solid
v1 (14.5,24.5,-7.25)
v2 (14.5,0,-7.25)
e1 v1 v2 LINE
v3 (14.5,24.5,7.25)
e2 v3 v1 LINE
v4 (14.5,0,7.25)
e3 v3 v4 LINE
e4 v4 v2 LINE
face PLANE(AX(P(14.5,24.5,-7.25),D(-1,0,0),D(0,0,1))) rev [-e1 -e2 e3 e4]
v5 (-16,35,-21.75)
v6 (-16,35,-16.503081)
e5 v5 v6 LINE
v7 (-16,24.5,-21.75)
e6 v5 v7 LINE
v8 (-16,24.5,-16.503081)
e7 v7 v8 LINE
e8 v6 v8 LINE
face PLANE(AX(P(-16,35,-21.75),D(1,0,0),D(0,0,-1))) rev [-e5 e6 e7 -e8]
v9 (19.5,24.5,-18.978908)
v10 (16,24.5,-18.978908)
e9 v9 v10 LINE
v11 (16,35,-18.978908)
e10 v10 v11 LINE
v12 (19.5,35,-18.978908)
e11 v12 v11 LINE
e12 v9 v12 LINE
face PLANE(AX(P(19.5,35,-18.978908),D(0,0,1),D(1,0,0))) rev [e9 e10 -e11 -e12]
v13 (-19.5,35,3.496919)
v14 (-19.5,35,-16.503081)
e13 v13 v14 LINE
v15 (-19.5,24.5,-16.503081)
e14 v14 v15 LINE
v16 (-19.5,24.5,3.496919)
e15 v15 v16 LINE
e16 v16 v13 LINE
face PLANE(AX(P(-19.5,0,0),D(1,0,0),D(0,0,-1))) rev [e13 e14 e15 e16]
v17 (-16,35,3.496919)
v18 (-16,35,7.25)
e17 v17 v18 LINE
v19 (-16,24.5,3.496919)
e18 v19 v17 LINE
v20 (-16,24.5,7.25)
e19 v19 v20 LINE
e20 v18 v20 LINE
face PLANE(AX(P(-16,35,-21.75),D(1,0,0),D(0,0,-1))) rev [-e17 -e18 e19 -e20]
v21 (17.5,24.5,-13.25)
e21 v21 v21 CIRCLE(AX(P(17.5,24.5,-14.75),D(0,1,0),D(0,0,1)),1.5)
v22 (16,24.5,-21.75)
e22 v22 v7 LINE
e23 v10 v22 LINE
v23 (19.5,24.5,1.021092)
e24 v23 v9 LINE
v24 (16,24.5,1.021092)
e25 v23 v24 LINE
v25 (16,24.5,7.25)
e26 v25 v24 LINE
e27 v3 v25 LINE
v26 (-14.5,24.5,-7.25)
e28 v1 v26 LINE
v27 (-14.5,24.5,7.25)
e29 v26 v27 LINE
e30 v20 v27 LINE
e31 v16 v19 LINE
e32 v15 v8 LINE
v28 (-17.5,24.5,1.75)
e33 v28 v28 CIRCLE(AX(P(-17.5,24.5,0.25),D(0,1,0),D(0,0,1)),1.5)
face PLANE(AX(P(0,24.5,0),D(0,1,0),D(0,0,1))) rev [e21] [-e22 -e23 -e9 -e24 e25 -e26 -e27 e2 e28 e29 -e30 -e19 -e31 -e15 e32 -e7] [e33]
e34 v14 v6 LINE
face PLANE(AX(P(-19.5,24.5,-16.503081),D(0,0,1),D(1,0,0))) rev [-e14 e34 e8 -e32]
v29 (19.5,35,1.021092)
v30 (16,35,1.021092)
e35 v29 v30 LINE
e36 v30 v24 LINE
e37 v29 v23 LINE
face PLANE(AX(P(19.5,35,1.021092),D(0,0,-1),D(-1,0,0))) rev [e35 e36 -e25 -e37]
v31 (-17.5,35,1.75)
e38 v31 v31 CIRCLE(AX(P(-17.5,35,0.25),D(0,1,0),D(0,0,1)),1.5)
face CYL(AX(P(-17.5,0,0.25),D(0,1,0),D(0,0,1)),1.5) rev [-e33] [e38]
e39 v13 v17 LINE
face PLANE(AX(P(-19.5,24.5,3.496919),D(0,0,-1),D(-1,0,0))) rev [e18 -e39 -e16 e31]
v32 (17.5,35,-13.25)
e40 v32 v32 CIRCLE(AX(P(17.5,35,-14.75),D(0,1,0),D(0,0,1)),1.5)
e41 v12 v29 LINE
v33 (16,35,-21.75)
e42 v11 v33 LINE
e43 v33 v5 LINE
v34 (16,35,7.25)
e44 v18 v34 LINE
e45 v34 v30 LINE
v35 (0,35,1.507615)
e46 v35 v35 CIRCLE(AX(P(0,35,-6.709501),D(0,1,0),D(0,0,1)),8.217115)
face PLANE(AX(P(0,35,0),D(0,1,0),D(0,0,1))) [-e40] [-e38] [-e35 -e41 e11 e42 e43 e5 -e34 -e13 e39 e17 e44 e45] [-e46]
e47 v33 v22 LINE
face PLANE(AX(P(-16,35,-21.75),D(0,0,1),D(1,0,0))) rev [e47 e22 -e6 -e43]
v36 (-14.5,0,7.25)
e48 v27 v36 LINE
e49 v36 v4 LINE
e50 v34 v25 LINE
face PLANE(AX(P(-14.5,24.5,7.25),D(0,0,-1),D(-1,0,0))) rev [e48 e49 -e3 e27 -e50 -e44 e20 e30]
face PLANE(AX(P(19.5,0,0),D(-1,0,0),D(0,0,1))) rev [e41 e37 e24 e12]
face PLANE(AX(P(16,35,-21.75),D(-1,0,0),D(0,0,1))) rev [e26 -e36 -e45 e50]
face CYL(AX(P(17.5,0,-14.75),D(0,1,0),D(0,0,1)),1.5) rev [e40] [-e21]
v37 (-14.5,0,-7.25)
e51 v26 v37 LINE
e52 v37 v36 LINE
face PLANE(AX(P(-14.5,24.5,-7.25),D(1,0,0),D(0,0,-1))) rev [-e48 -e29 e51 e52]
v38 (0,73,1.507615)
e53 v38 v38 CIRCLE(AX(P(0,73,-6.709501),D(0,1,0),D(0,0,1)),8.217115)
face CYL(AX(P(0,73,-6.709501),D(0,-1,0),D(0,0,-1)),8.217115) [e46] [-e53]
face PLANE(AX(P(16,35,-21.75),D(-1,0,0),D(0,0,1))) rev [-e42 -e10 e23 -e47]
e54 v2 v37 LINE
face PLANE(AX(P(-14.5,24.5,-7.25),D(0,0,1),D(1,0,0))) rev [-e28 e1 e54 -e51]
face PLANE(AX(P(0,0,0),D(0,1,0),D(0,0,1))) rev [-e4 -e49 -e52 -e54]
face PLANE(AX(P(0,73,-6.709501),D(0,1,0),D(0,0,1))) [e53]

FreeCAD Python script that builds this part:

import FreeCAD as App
import Part
import Sketcher

doc = App.newDocument("Part")
params = doc.addObject("Spreadsheet::Sheet", "Params")
for row, (alias, value) in enumerate([
    ("sketch1_width", "29 mm"),
    ("sketch1_height", "14.5 mm"),
    ("pad1_length", "24.5 mm"),
    ("sketch2_width", "32 mm"),
    ("sketch2_height", "29 mm"),
    ("pad2_length", "10.5 mm"),
    ("sketch3_height", "20 mm"),
    ("sketch3_width", "10.5 mm"),
    ("pad3_length", "3.5 mm"),
    ("sketch4_height", "20 mm"),
    ("sketch4_width", "10.5 mm"),
    ("pad4_length", "3.5 mm"),
    ("sketch5_diameter", "3 mm"),
    ("pad5_length", "38 mm"),
], start=1):
    params.set(f"A{row}", alias)
    params.set(f"B{row}", "=" + value)
    params.setAlias(f"B{row}", alias)

body = doc.addObject("PartDesign::Body", "Body")

# Sketch on XZ plane
sketch1 = body.newObject("Sketcher::SketchObject", "Sketch")
sketch1.AttachmentSupport = (doc.getObject("XZ_Plane"), [""])
sketch1.MapMode = "FlatFace"
sketch1.addGeometry([
    Part.LineSegment(App.Vector(-14, -7, 0), App.Vector(-14, 7, 0)),
    Part.LineSegment(App.Vector(-14, 7, 0), App.Vector(14, 7, 0)),
    Part.LineSegment(App.Vector(14, 7, 0), App.Vector(14, -7, 0)),
    Part.LineSegment(App.Vector(14, -7, 0), App.Vector(-14, -7, 0)),
], False)
sketch1.addConstraint([
    Sketcher.Constraint("Coincident", 0, 2, 1, 1),
    Sketcher.Constraint("Coincident", 1, 2, 2, 1),
    Sketcher.Constraint("Coincident", 2, 2, 3, 1),
    Sketcher.Constraint("Coincident", 3, 2, 0, 1),
    Sketcher.Constraint("Vertical", 0),
    Sketcher.Constraint("Horizontal", 1),
    Sketcher.Constraint("Vertical", 2),
    Sketcher.Constraint("Horizontal", 3),
    Sketcher.Constraint("Symmetric", 0, 2, 2, 2, -1, 1),
    Sketcher.Constraint("DistanceX", 1, 1, 1, 2, 29.0),
    Sketcher.Constraint("DistanceY", 0, 1, 0, 2, 14.5),
])
sketch1.setExpression("Constraints[9]", "Params.sketch1_width")
sketch1.setExpression("Constraints[10]", "Params.sketch1_height")
pad1 = body.newObject("PartDesign::Pad", "Pad")
pad1.Profile = sketch1
pad1.setExpression("Length", "Params.pad1_length")
pad1.Reversed = True

# Sketch on XZ plane
sketch2 = body.newObject("Sketcher::SketchObject", "Sketch001")
sketch2.AttachmentSupport = (doc.getObject("XZ_Plane"), [""])
sketch2.MapMode = "FlatFace"
sketch2.AttachmentOffset = App.Placement(App.Vector(0, 0, -24.5), App.Rotation())
sketch2.addGeometry([
    Part.LineSegment(App.Vector(-16, -22, 0), App.Vector(-16, 7, 0)),
    Part.LineSegment(App.Vector(-16, 7, 0), App.Vector(16, 7, 0)),
    Part.LineSegment(App.Vector(16, 7, 0), App.Vector(16, -22, 0)),
    Part.LineSegment(App.Vector(16, -22, 0), App.Vector(-16, -22, 0)),
], False)
sketch2.addConstraint([
    Sketcher.Constraint("Coincident", 0, 2, 1, 1),
    Sketcher.Constraint("Coincident", 1, 2, 2, 1),
    Sketcher.Constraint("Coincident", 2, 2, 3, 1),
    Sketcher.Constraint("Coincident", 3, 2, 0, 1),
    Sketcher.Constraint("Vertical", 0),
    Sketcher.Constraint("Horizontal", 1),
    Sketcher.Constraint("Vertical", 2),
    Sketcher.Constraint("Horizontal", 3),
    Sketcher.Constraint("DistanceX", 1, 1, 1, 2, 32.0),
    Sketcher.Constraint("DistanceY", 0, 1, 0, 2, 29.0),
    Sketcher.Constraint("DistanceX", 0, 2, -1, 1, 16.0),
    Sketcher.Constraint("DistanceY", -1, 1, 0, 2, 7.25),
])
sketch2.setExpression("Constraints[8]", "Params.sketch2_width")
sketch2.setExpression("Constraints[9]", "Params.sketch2_height")
pad2 = body.newObject("PartDesign::Pad", "Pad001")
pad2.Profile = sketch2
pad2.setExpression("Length", "Params.pad2_length")
pad2.Reversed = True

# Sketch on YZ plane
sketch3 = body.newObject("Sketcher::SketchObject", "Sketch002")
sketch3.AttachmentSupport = (doc.getObject("YZ_Plane"), [""])
sketch3.MapMode = "FlatFace"
sketch3.AttachmentOffset = App.Placement(App.Vector(0, 0, 16), App.Rotation())
sketch3.addGeometry([
    Part.LineSegment(App.Vector(35, 1, 0), App.Vector(24, 1, 0)),
    Part.LineSegment(App.Vector(24, 1, 0), App.Vector(24, -19, 0)),
    Part.LineSegment(App.Vector(24, -19, 0), App.Vector(35, -19, 0)),
    Part.LineSegment(App.Vector(35, -19, 0), App.Vector(35, 1, 0)),
], False)
sketch3.addConstraint([
    Sketcher.Constraint("Coincident", 0, 2, 1, 1),
    Sketcher.Constraint("Coincident", 1, 2, 2, 1),
    Sketcher.Constraint("Coincident", 2, 2, 3, 1),
    Sketcher.Constraint("Coincident", 3, 2, 0, 1),
    Sketcher.Constraint("Horizontal", 0),
    Sketcher.Constraint("Vertical", 1),
    Sketcher.Constraint("Horizontal", 2),
    Sketcher.Constraint("Vertical", 3),
    Sketcher.Constraint("DistanceY", 1, 2, 1, 1, 20.0),
    Sketcher.Constraint("DistanceX", 0, 2, 0, 1, 10.5),
    Sketcher.Constraint("DistanceX", -1, 1, 2, 2, 35.0),
    Sketcher.Constraint("DistanceY", -1, 1, 0, 2, 1.021092),
])
sketch3.setExpression("Constraints[8]", "Params.sketch3_height")
sketch3.setExpression("Constraints[9]", "Params.sketch3_width")
pad3 = body.newObject("PartDesign::Pad", "Pad002")
pad3.Profile = sketch3
pad3.setExpression("Length", "Params.pad3_length")

# Sketch on YZ plane
sketch4 = body.newObject("Sketcher::SketchObject", "Sketch003")
sketch4.AttachmentSupport = (doc.getObject("YZ_Plane"), [""])
sketch4.MapMode = "FlatFace"
sketch4.AttachmentOffset = App.Placement(App.Vector(0, 0, -16), App.Rotation())
sketch4.addGeometry([
    Part.LineSegment(App.Vector(35, -17, 0), App.Vector(24, -17, 0)),
    Part.LineSegment(App.Vector(24, -17, 0), App.Vector(24, 3, 0)),
    Part.LineSegment(App.Vector(24, 3, 0), App.Vector(35, 3, 0)),
    Part.LineSegment(App.Vector(35, 3, 0), App.Vector(35, -17, 0)),
], False)
sketch4.addConstraint([
    Sketcher.Constraint("Coincident", 0, 2, 1, 1),
    Sketcher.Constraint("Coincident", 1, 2, 2, 1),
    Sketcher.Constraint("Coincident", 2, 2, 3, 1),
    Sketcher.Constraint("Coincident", 3, 2, 0, 1),
    Sketcher.Constraint("Horizontal", 0),
    Sketcher.Constraint("Vertical", 1),
    Sketcher.Constraint("Horizontal", 2),
    Sketcher.Constraint("Vertical", 3),
    Sketcher.Constraint("DistanceY", 1, 1, 1, 2, 20.0),
    Sketcher.Constraint("DistanceX", 0, 2, 0, 1, 10.5),
    Sketcher.Constraint("DistanceX", -1, 1, 2, 2, 35.0),
    Sketcher.Constraint("DistanceY", 0, 2, -1, 1, 16.503081),
])
sketch4.setExpression("Constraints[8]", "Params.sketch4_height")
sketch4.setExpression("Constraints[9]", "Params.sketch4_width")
pad4 = body.newObject("PartDesign::Pad", "Pad003")
pad4.Profile = sketch4
pad4.setExpression("Length", "Params.pad4_length")
pad4.Reversed = True

# Sketch on XZ plane
sketch5 = body.newObject("Sketcher::SketchObject", "Sketch004")
sketch5.AttachmentSupport = (doc.getObject("XZ_Plane"), [""])
sketch5.MapMode = "FlatFace"
sketch5.AttachmentOffset = App.Placement(App.Vector(0, 0, -35), App.Rotation())
sketch5.addGeometry([
    Part.Circle(App.Vector(17.5, -14.8, 0), App.Vector(0, 0, 1), 1.5),
    Part.Circle(App.Vector(-17.5, 0.2, 0), App.Vector(0, 0, 1), 1.5),
], False)
sketch5.addConstraint([
    Sketcher.Constraint("Equal", 0, 1),
    Sketcher.Constraint("Diameter", 0, 3.0),
    Sketcher.Constraint("DistanceX", 1, 3, 0, 3, 35.0),
    Sketcher.Constraint("DistanceY", 0, 3, 1, 3, 15.0),
    Sketcher.Constraint("DistanceX", -1, 1, 0, 3, 17.5),
    Sketcher.Constraint("DistanceY", 0, 3, -1, 1, 14.75),
])
sketch5.setExpression("Constraints[1]", "Params.sketch5_diameter")
pocket1 = body.newObject("PartDesign::Pocket", "Pocket")
pocket1.Profile = sketch5
pocket1.Type = "ThroughAll"
pocket1.Reversed = True

# Sketch on XZ plane
sketch6 = body.newObject("Sketcher::SketchObject", "Sketch005")
sketch6.AttachmentSupport = (doc.getObject("XZ_Plane"), [""])
sketch6.MapMode = "FlatFace"
sketch6.AttachmentOffset = App.Placement(App.Vector(0, 0, -35), App.Rotation())
sketch6.addGeometry(Part.Circle(App.Vector(0, -7, 0), App.Vector(0, 0, 1), 8), False)
sketch6.addConstraint([
    Sketcher.Constraint("PointOnObject", 0, 3, -2),
    Sketcher.Constraint("Diameter", 0, 16.434231),
    Sketcher.Constraint("DistanceY", 0, 3, -1, 1, 6.709501),
])
pad5 = body.newObject("PartDesign::Pad", "Pad004")
pad5.Profile = sketch6
pad5.setExpression("Length", "Params.pad5_length")
pad5.Reversed = True

doc.recompute()
